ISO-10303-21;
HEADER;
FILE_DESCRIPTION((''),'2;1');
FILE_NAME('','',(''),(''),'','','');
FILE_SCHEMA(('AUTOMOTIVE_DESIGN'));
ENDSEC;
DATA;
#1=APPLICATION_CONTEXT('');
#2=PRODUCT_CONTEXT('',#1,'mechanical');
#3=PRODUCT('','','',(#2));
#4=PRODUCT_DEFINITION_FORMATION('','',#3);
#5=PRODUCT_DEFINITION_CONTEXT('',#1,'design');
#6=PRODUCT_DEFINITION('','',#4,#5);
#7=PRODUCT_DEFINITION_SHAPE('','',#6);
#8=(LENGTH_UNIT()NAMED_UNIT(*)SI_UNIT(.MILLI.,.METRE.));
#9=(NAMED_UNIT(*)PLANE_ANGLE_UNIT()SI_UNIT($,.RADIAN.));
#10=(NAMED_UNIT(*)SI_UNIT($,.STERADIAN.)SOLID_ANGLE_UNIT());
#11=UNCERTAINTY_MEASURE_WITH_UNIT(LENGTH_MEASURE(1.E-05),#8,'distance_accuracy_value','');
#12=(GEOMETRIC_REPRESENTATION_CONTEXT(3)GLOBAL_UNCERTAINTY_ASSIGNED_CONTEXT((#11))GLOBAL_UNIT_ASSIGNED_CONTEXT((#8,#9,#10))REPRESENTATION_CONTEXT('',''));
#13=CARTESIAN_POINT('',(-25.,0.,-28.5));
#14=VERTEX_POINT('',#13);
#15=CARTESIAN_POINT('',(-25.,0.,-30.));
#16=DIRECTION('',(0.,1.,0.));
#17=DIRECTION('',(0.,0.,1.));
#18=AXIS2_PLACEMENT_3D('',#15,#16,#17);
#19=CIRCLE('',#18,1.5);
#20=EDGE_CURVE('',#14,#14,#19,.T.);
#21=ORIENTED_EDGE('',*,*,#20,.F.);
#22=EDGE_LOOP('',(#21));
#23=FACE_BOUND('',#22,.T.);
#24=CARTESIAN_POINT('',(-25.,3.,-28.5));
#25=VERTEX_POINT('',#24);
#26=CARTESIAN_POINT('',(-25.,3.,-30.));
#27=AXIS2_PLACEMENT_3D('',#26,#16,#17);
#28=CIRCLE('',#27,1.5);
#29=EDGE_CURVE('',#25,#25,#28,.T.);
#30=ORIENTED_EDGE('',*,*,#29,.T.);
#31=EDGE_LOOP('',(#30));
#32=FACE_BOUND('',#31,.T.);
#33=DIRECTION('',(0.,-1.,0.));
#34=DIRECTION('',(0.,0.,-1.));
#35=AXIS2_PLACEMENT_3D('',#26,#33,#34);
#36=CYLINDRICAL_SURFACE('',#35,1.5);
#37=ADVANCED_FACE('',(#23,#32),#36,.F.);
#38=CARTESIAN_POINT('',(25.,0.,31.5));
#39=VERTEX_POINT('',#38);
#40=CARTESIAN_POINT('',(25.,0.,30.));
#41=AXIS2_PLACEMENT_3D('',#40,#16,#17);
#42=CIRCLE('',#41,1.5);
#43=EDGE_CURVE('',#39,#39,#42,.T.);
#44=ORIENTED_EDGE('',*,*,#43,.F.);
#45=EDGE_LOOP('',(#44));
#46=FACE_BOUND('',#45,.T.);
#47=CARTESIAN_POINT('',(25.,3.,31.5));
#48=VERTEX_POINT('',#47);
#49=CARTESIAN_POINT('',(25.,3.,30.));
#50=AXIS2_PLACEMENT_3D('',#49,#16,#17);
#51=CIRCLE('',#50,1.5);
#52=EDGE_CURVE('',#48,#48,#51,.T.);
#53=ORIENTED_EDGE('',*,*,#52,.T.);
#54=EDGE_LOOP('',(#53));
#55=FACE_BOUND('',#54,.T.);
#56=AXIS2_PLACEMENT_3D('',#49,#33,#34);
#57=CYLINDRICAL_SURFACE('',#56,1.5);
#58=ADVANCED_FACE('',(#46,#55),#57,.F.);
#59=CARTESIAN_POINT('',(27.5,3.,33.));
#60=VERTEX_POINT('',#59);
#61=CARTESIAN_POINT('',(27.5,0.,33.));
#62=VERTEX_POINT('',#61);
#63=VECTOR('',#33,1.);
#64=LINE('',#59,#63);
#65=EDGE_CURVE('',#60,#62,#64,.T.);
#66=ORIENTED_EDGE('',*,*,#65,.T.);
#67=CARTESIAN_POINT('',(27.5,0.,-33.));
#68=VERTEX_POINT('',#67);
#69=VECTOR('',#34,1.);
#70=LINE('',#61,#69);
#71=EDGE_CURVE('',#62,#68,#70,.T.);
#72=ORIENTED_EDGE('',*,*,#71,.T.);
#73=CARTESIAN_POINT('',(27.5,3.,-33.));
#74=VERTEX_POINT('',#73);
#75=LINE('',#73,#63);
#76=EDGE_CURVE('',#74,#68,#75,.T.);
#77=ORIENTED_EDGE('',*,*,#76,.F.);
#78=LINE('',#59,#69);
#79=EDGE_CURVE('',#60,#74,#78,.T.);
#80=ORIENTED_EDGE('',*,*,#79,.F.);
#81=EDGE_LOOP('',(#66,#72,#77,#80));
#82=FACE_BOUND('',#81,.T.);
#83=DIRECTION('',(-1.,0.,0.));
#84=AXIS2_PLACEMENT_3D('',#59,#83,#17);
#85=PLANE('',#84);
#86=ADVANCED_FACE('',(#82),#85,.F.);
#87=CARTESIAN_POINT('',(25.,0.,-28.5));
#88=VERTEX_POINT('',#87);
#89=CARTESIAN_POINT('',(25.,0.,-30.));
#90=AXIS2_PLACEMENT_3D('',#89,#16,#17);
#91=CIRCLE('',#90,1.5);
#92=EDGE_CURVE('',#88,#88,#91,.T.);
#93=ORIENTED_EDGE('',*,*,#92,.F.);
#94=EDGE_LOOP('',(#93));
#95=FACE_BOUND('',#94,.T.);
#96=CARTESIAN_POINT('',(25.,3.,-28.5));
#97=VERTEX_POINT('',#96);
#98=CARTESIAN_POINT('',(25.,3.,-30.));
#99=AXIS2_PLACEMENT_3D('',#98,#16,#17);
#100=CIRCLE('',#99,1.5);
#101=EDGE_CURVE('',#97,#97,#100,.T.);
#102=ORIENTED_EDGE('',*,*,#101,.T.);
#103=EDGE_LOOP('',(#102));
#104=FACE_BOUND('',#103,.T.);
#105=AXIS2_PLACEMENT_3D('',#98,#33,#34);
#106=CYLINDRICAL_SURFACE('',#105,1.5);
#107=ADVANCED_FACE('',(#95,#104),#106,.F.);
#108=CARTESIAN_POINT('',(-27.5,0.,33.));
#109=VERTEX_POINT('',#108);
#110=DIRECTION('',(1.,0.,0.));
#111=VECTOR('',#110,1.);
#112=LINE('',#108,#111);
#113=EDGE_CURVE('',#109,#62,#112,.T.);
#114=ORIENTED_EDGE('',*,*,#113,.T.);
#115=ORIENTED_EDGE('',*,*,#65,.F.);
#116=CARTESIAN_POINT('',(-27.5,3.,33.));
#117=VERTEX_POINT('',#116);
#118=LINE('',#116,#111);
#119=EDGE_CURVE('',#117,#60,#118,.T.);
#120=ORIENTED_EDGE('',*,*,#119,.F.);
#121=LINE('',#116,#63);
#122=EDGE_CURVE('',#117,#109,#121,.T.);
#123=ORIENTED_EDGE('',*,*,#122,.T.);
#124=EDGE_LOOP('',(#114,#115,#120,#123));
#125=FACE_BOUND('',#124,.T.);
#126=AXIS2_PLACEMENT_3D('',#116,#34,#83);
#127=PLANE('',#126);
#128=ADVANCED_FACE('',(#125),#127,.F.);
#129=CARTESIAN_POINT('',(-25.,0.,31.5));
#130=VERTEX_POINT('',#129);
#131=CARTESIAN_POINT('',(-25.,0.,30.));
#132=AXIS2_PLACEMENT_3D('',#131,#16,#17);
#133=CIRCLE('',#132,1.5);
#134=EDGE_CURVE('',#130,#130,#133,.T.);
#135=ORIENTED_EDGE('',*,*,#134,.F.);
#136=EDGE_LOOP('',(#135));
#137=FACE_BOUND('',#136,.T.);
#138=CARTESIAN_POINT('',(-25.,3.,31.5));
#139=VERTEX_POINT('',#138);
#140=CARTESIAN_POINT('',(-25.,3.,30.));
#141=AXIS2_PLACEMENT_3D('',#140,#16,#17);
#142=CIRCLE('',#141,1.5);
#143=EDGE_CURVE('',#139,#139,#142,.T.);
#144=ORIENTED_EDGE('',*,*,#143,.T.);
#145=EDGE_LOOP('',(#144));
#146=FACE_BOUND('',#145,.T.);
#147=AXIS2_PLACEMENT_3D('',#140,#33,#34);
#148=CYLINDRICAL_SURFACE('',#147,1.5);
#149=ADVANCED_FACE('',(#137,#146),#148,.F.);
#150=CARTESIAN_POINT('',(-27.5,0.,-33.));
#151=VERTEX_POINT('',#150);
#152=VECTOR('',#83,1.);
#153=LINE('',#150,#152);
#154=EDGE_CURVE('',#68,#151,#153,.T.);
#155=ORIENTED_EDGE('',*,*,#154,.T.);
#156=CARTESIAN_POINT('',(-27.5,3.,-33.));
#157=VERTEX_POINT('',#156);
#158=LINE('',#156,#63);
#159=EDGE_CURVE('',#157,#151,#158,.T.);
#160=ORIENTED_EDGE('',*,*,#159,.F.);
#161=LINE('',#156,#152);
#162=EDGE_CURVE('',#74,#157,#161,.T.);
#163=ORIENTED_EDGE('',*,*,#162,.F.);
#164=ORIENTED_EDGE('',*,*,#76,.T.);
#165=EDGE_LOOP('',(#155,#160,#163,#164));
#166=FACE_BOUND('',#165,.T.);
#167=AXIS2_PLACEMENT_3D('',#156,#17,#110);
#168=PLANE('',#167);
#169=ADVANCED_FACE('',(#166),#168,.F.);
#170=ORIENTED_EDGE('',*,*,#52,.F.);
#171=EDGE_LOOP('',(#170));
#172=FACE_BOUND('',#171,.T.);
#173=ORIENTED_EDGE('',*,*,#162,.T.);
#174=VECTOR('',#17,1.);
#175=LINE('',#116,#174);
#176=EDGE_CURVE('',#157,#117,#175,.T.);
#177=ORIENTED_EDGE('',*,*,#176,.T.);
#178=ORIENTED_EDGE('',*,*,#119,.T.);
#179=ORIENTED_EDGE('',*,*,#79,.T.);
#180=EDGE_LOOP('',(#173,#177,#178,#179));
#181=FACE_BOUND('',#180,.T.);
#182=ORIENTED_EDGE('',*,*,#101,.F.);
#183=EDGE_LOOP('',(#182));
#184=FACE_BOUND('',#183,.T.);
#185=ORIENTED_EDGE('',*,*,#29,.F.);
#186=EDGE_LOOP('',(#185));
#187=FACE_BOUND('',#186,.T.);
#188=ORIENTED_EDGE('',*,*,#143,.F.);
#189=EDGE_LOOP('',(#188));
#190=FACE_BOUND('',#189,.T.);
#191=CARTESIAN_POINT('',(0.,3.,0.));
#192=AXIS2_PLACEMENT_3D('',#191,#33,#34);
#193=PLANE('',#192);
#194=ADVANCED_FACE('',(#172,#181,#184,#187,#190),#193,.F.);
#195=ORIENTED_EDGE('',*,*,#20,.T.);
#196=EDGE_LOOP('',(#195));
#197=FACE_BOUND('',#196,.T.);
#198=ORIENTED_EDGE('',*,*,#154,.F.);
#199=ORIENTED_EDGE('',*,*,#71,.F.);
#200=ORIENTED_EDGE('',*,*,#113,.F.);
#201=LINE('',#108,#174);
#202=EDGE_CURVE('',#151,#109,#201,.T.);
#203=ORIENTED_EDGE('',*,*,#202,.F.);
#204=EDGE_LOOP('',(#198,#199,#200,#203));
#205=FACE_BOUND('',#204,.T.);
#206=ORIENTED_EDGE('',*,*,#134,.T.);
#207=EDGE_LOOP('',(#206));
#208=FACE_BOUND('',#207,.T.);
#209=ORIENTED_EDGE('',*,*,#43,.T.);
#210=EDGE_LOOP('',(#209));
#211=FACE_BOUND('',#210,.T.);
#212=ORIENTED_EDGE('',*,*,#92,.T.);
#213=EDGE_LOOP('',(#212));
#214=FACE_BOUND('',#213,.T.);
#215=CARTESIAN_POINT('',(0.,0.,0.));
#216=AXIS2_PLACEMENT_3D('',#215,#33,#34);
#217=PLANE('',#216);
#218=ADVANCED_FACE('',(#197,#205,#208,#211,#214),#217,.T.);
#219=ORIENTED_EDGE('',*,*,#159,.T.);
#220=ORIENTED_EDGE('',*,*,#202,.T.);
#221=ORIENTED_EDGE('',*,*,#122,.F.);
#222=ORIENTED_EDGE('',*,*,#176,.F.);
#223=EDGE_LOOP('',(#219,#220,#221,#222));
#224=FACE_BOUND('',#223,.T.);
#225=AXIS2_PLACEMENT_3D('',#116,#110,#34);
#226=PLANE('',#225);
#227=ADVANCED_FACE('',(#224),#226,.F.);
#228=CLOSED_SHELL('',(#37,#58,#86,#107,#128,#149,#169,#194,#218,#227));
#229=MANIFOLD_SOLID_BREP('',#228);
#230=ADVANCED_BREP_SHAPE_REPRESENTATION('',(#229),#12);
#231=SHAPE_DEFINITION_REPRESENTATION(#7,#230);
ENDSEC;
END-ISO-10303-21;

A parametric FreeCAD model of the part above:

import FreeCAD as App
import Part
import Sketcher

doc = App.newDocument("Part")
params = doc.addObject("Spreadsheet::Sheet", "Params")
for row, (alias, value) in enumerate([
    ("sketch1_diameter", "3 mm"),
    ("sketch1_width", "55 mm"),
    ("sketch1_height", "66 mm"),
    ("pad1_length", "3 mm"),
], start=1):
    params.set(f"A{row}", alias)
    params.set(f"B{row}", "=" + value)
    params.setAlias(f"B{row}", alias)

body = doc.addObject("PartDesign::Body", "Body")

# Sketch on XZ plane
sketch1 = body.newObject("Sketcher::SketchObject", "Sketch")
sketch1.AttachmentSupport = (doc.getObject("XZ_Plane"), [""])
sketch1.MapMode = "FlatFace"
sketch1.addGeometry(Part.LineSegment(App.Vector(-27.5, -33, 0), App.Vector(-27.5, 33, 0)), False)
sketch1.addGeometry(Part.LineSegment(App.Vector(-27.5, 33, 0), App.Vector(27.5, 33, 0)), False)
sketch1.addGeometry(Part.LineSegment(App.Vector(27.5, 33, 0), App.Vector(27.5, -33, 0)), False)
sketch1.addGeometry(Part.LineSegment(App.Vector(27.5, -33, 0), App.Vector(-27.5, -33, 0)), False)
sketch1.addGeometry(Part.Circle(App.Vector(-25, 30, 0), App.Vector(0, 0, 1), 1.5), False)
sketch1.addGeometry(Part.Circle(App.Vector(25, 30, 0), App.Vector(0, 0, 1), 1.5), False)
sketch1.addGeometry(Part.Circle(App.Vector(-25, -30, 0), App.Vector(0, 0, 1), 1.5), False)
sketch1.addGeometry(Part.Circle(App.Vector(25, -30, 0), App.Vector(0, 0, 1), 1.5), False)
sketch1.addConstraint(Sketcher.Constraint("Coincident", 0, 2, 1, 1))
sketch1.addConstraint(Sketcher.Constraint("Coincident", 1, 2, 2, 1))
sketch1.addConstraint(Sketcher.Constraint("Coincident", 2, 2, 3, 1))
sketch1.addConstraint(Sketcher.Constraint("Coincident", 3, 2, 0, 1))
sketch1.addConstraint(Sketcher.Constraint("Vertical", 0))
sketch1.addConstraint(Sketcher.Constraint("Horizontal", 1))
sketch1.addConstraint(Sketcher.Constraint("Vertical", 2))
sketch1.addConstraint(Sketcher.Constraint("Horizontal", 3))
sketch1.addConstraint(Sketcher.Constraint("Equal", 4, 5))
sketch1.addConstraint(Sketcher.Constraint("Equal", 5, 6))
sketch1.addConstraint(Sketcher.Constraint("Equal", 6, 7))
sketch1.addConstraint(Sketcher.Constraint("Symmetric", 5, 3, 6, 3, -1, 1))
sketch1.addConstraint(Sketcher.Constraint("Symmetric", 4, 3, 7, 3, -1, 1))
sketch1.addConstraint(Sketcher.Constraint("Symmetric", 0, 2, 2, 2, -1, 1))
sketch1.addConstraint(Sketcher.Constraint("Symmetric", 4, 3, 5, 3, -2))
sketch1.addConstraint(Sketcher.Constraint("Diameter", 4, 3.0))
sketch1.addConstraint(Sketcher.Constraint("DistanceX", 1, 1, 1, 2, 55.0))
sketch1.addConstraint(Sketcher.Constraint("DistanceY", 0, 1, 0, 2, 66.0))
sketch1.addConstraint(Sketcher.Constraint("DistanceX", 4, 3, -1, 1, 25.0))
sketch1.addConstraint(Sketcher.Constraint("DistanceY", -1, 1, 4, 3, 30.0))
sketch1.setExpression("Constraints[15]", "Params.sketch1_diameter")
sketch1.setExpression("Constraints[16]", "Params.sketch1_width")
sketch1.setExpression("Constraints[17]", "Params.sketch1_height")
pad1 = body.newObject("PartDesign::Pad", "Pad")
pad1.Profile = sketch1
pad1.setExpression("Length", "Params.pad1_length")
pad1.Reversed = True

doc.recompute()
